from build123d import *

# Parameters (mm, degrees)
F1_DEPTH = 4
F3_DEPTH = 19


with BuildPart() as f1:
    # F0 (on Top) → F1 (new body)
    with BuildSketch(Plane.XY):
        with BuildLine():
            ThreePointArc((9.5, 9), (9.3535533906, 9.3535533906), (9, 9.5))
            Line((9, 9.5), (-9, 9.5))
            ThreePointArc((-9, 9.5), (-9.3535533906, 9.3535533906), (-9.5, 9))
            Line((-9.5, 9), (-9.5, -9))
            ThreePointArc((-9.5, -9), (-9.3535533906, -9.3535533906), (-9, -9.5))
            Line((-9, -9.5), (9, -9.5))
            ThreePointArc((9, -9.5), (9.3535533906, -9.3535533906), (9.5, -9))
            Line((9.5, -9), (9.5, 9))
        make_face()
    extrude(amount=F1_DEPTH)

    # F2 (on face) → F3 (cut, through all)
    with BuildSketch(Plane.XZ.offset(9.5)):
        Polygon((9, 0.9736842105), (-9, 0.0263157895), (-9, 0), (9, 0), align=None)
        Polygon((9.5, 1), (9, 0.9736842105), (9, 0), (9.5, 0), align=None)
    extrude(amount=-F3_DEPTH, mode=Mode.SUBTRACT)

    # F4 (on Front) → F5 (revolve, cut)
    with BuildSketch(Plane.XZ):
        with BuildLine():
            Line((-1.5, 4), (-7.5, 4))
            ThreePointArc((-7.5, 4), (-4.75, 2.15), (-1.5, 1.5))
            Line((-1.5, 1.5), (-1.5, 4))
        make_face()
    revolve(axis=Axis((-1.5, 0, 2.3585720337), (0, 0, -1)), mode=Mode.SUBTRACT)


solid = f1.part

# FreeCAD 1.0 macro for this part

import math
import FreeCAD as App
import Part
import Sketcher
Q = App.Units.Quantity


def add_polygon(sketch, points):
    """Adds a closed chain of lines whose ends are joined by coincident constraints."""
    first, n = sketch.GeometryCount, len(points)
    for a, b in zip(points, points[1:] + points[:1]):
        sketch.addGeometry(Part.LineSegment(App.Vector(*a, 0), App.Vector(*b, 0)), False)
    for i in range(n):
        sketch.addConstraint(Sketcher.Constraint("Coincident", first + i, 2, first + (i + 1) % n, 1))

doc = App.newDocument("Part")
body = doc.addObject("PartDesign::Body", "Body")

# Sketch on XY plane
sketch1 = doc.addObject("Sketcher::SketchObject", "Sketch")
body.addObject(sketch1)
sketch1.AttachmentSupport = (doc.XY_Plane, [""])
sketch1.MapMode = "FlatFace"
sketch1.addGeometry(Part.ArcOfCircle(Part.Circle(App.Vector(9, 9, 0), App.Vector(0, 0, 1), 0.5), math.radians(0), math.radians(90)), False)
sketch1.addGeometry(Part.LineSegment(App.Vector(9, 9.5, 0), App.Vector(-9, 9.5, 0)), False)
sketch1.addGeometry(Part.ArcOfCircle(Part.Circle(App.Vector(-9, 9, 0), App.Vector(0, 0, 1), 0.5), math.radians(90), math.radians(180)), False)
sketch1.addGeometry(Part.LineSegment(App.Vector(-9.5, 9, 0), App.Vector(-9.5, -9, 0)), False)
sketch1.addGeometry(Part.ArcOfCircle(Part.Circle(App.Vector(-9, -9, 0), App.Vector(0, 0, 1), 0.5), math.radians(180), math.radians(270)), False)
sketch1.addGeometry(Part.LineSegment(App.Vector(-9, -9.5, 0), App.Vector(9, -9.5, 0)), False)
sketch1.addGeometry(Part.ArcOfCircle(Part.Circle(App.Vector(9, -9, 0), App.Vector(0, 0, 1), 0.5), math.radians(-90), math.radians(0)), False)
sketch1.addGeometry(Part.LineSegment(App.Vector(9.5, -9, 0), App.Vector(9.5, 9, 0)), False)
sketch1.addConstraint(Sketcher.Constraint("Tangent", 0, 2, 1, 1))
sketch1.addConstraint(Sketcher.Constraint("Tangent", 1, 2, 2, 1))
sketch1.addConstraint(Sketcher.Constraint("Tangent", 2, 2, 3, 1))
sketch1.addConstraint(Sketcher.Constraint("Tangent", 3, 2, 4, 1))
sketch1.addConstraint(Sketcher.Constraint("Tangent", 4, 2, 5, 1))
sketch1.addConstraint(Sketcher.Constraint("Tangent", 5, 2, 6, 1))
sketch1.addConstraint(Sketcher.Constraint("Tangent", 6, 2, 7, 1))
sketch1.addConstraint(Sketcher.Constraint("Tangent", 7, 2, 0, 1))
sketch1.addConstraint(Sketcher.Constraint("Horizontal", 1))
sketch1.addConstraint(Sketcher.Constraint("Vertical", 3))
sketch1.addConstraint(Sketcher.Constraint("Horizontal", 5))
sketch1.addConstraint(Sketcher.Constraint("Vertical", 7))
sketch1.addConstraint(Sketcher.Constraint("Equal", 0, 2))
sketch1.addConstraint(Sketcher.Constraint("Equal", 2, 4))
sketch1.addConstraint(Sketcher.Constraint("Equal", 4, 6))
sketch1.addConstraint(Sketcher.Constraint("Symmetric", 0, 3, 4, 3, -1, 1))
sketch1.addConstraint(Sketcher.Constraint("Equal", 5, 3))
sketch1.addConstraint(Sketcher.Constraint("Radius", 0, Q("0.5 mm")))
sketch1.addConstraint(Sketcher.Constraint("DistanceX", 1, 2, 1, 1, Q("18 mm")))
pad1 = doc.addObject("PartDesign::Pad", "Pad")
body.addObject(pad1)
pad1.Profile = sketch1
pad1.Length = 4

# Sketch on XZ plane
sketch2 = doc.addObject("Sketcher::SketchObject", "Sketch001")
body.addObject(sketch2)
sketch2.AttachmentSupport = (doc.XZ_Plane, [""])
sketch2.MapMode = "FlatFace"
sketch2.AttachmentOffset = App.Placement(App.Vector(0, 0, 9.5), App.Rotation())
add_polygon(sketch2, [(9, 0.973684), (-9, 0.026316), (-9, 0), (9.5, 0), (9.5, 1)])  # lines 0-4
sketch2.addConstraint(Sketcher.Constraint("Vertical", 1))
sketch2.addConstraint(Sketcher.Constraint("Horizontal", 2))
sketch2.addConstraint(Sketcher.Constraint("Vertical", 3))
sketch2.addConstraint(Sketcher.Constraint("PointOnObject", 1, 2, -1))
sketch2.addConstraint(Sketcher.Constraint("Parallel", 0, 4))
sketch2.addConstraint(Sketcher.Constraint("DistanceY", 3, 1, 3, 2, Q("1 mm")))
sketch2.addConstraint(Sketcher.Constraint("DistanceX", 2, 1, 2, 2, Q("18.5 mm")))
sketch2.addConstraint(Sketcher.Constraint("DistanceX", 0, 2, -1, 1, Q("9 mm")))
sketch2.addConstraint(Sketcher.Constraint("DistanceX", -1, 1, 4, 2, Q("9 mm")))
sketch2.addConstraint(Sketcher.Constraint("DistanceY", 1, 2, 1, 1, Q("0.026316 mm")))
pocket1 = doc.addObject("PartDesign::Pocket", "Pocket")
body.addObject(pocket1)
pocket1.Profile = sketch2
pocket1.Type = "ThroughAll"

# Sketch on XZ plane
sketch3 = doc.addObject("Sketcher::SketchObject", "Sketch002")
body.addObject(sketch3)
sketch3.AttachmentSupport = (doc.XZ_Plane, [""])
sketch3.MapMode = "FlatFace"
sketch3.addGeometry(Part.LineSegment(App.Vector(-1.5, 4, 0), App.Vector(-7.5, 4, 0)), False)
sketch3.addGeometry(Part.ArcOfCircle(Part.Circle(App.Vector(-1.5, 9.95, 0), App.Vector(0, 0, 1), 8.45), math.radians(-135.23973), math.radians(-90)), False)
sketch3.addGeometry(Part.LineSegment(App.Vector(-1.5, 1.5, 0), App.Vector(-1.5, 4, 0)), False)
sketch3.addGeometry(Part.LineSegment(App.Vector(-1.5, 9.95, 0), App.Vector(-1.5, 1.5, 0)), True)  # axis
sketch3.addConstraint(Sketcher.Constraint("Coincident", 0, 2, 1, 1))
sketch3.addConstraint(Sketcher.Constraint("Coincident", 1, 2, 2, 1))
sketch3.addConstraint(Sketcher.Constraint("Coincident", 2, 2, 0, 1))
sketch3.addConstraint(Sketcher.Constraint("Horizontal", 0))
sketch3.addConstraint(Sketcher.Constraint("Vertical", 2))
sketch3.addConstraint(Sketcher.Constraint("Vertical", 3))
sketch3.addConstraint(Sketcher.Constraint("Coincident", 3, 1, 1, 3))
sketch3.addConstraint(Sketcher.Constraint("Coincident", 3, 2, 1, 2))
sketch3.addConstraint(Sketcher.Constraint("DistanceX", 0, 2, 0, 1, Q("6 mm")))
sketch3.addConstraint(Sketcher.Constraint("Radius", 1, Q("8.45 mm")))
sketch3.addConstraint(Sketcher.Constraint("DistanceY", -1, 1, 0, 2, Q("4 mm")))
sketch3.addConstraint(Sketcher.Constraint("DistanceX", 1, 3, -1, 1, Q("1.5 mm")))
groove = doc.addObject("PartDesign::Groove", "Groove")
body.addObject(groove)
groove.Profile = sketch3
groove.ReferenceAxis = (sketch3, ["Axis0"])
groove.Angle = 360

doc.recompute()
